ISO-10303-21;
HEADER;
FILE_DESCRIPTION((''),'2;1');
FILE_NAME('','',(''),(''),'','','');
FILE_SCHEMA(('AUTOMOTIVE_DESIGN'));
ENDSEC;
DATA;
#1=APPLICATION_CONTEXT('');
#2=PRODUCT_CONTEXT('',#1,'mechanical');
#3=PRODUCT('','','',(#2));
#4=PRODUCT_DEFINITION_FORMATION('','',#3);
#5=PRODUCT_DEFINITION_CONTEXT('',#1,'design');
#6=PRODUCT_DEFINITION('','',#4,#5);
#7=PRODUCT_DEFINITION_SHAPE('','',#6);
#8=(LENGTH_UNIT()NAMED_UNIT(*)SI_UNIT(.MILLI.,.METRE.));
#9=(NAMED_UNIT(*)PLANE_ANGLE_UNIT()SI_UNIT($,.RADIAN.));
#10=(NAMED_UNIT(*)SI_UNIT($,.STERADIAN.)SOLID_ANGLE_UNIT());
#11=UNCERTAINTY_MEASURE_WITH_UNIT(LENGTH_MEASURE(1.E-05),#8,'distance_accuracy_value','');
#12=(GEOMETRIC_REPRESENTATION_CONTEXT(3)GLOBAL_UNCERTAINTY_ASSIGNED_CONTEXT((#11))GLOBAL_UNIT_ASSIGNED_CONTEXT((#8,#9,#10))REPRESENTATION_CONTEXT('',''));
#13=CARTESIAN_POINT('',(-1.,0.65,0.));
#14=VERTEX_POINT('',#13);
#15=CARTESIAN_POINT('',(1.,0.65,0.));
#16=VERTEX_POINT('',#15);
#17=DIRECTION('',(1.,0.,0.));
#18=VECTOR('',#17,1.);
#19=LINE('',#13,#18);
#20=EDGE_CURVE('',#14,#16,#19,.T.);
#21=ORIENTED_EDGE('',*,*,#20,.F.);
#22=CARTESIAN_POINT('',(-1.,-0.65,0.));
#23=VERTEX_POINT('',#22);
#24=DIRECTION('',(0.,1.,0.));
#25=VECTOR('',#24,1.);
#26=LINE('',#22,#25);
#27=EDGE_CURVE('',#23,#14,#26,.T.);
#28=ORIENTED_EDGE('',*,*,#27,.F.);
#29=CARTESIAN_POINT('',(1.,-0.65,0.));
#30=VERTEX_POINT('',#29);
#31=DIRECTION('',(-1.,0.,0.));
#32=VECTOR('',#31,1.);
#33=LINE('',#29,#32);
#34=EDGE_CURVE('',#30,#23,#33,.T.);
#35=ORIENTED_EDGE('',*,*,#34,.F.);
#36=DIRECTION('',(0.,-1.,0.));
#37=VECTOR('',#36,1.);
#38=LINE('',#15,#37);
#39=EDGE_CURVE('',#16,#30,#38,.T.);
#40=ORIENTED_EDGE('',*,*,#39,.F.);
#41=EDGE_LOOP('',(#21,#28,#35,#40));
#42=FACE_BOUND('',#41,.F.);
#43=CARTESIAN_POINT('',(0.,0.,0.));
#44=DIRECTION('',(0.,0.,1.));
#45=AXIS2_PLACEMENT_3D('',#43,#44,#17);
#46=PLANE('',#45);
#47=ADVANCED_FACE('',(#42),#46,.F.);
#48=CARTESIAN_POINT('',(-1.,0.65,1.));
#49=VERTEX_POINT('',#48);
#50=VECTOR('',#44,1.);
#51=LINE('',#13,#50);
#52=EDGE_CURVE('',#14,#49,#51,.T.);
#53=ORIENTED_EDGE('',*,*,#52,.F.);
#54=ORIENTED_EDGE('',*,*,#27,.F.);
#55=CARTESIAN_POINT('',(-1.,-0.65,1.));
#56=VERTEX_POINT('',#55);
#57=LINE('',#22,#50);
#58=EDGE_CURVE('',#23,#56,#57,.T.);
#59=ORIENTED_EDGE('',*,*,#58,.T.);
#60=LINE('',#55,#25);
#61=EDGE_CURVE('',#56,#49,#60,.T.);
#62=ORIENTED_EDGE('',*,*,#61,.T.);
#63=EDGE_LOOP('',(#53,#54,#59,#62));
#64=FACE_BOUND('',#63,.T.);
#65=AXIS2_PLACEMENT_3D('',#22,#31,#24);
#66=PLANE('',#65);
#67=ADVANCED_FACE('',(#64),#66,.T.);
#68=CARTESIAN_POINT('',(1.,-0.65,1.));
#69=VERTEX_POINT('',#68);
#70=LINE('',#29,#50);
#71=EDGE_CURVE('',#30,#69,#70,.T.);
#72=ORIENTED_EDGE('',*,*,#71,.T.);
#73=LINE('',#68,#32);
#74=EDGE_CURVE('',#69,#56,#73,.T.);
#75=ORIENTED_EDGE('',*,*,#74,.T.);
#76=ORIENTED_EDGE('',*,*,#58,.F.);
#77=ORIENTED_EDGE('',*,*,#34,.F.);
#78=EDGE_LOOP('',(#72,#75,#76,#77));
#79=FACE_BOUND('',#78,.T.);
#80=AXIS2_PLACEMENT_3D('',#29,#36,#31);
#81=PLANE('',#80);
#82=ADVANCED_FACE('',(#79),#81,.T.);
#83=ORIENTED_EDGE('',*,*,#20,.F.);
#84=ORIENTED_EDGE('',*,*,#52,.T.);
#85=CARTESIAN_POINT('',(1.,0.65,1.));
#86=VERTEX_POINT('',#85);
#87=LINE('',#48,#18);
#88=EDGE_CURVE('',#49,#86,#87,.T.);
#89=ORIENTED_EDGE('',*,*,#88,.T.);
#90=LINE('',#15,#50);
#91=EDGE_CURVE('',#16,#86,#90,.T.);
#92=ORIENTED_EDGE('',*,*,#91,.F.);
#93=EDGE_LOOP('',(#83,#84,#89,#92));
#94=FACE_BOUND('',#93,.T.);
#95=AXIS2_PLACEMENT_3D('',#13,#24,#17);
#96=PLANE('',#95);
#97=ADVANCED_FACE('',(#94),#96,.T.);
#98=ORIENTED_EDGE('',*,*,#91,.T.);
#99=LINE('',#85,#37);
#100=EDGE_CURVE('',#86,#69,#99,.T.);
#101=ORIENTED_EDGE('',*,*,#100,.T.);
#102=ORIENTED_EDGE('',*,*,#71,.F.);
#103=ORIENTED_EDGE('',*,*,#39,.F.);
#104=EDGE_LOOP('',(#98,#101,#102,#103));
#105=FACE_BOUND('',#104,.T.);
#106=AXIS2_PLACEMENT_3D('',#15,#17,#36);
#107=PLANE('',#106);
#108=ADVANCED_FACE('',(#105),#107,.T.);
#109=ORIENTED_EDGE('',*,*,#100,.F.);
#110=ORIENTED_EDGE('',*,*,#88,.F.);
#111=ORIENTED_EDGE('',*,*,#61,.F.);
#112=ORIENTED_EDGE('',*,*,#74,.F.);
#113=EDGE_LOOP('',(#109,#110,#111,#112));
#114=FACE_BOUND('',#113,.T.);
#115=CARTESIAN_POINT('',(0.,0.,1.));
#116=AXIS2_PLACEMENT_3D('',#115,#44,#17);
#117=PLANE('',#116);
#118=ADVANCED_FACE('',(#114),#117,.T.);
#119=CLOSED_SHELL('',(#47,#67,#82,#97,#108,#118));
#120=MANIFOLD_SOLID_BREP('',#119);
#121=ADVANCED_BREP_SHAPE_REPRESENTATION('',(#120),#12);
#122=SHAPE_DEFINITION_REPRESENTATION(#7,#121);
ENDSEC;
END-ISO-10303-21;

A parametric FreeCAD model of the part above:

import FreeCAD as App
import Part
import Sketcher
from FreeCAD import Vector

doc = App.newDocument("Part")
body = doc.addObject("PartDesign::Body", "Body")

# Sketch on XY plane
sketch1 = body.newObject("Sketcher::SketchObject", "Sketch")
sketch1.AttachmentSupport = (doc.getObject("XY_Plane"), [""])
sketch1.MapMode = "FlatFace"
sketch1.addGeometry(Part.LineSegment(Vector(1, 0.7, 0), Vector(-1, 0.7, 0)), False)
sketch1.addGeometry(Part.LineSegment(Vector(-1, 0.7, 0), Vector(-1, -0.7, 0)), False)
sketch1.addGeometry(Part.LineSegment(Vector(-1, -0.7, 0), Vector(1, -0.7, 0)), False)
sketch1.addGeometry(Part.LineSegment(Vector(1, -0.7, 0), Vector(1, 0.7, 0)), False)
sketch1.addConstraint(Sketcher.Constraint("Coincident", 0, 2, 1, 1))
sketch1.addConstraint(Sketcher.Constraint("Coincident", 1, 2, 2, 1))
sketch1.addConstraint(Sketcher.Constraint("Coincident", 2, 2, 3, 1))
sketch1.addConstraint(Sketcher.Constraint("Coincident", 3, 2, 0, 1))
sketch1.addConstraint(Sketcher.Constraint("Horizontal", 0))
sketch1.addConstraint(Sketcher.Constraint("Vertical", 1))
sketch1.addConstraint(Sketcher.Constraint("Horizontal", 2))
sketch1.addConstraint(Sketcher.Constraint("Vertical", 3))
sketch1.addConstraint(Sketcher.Constraint("Symmetric", 0, 2, 2, 2, -1, 1))
sketch1.addConstraint(Sketcher.Constraint("DistanceX", 0, 2, 0, 1, 2.0))
sketch1.addConstraint(Sketcher.Constraint("DistanceY", 1, 2, 1, 1, 1.3))
pad1 = body.newObject("PartDesign::Pad", "Pad")
pad1.Profile = sketch1
pad1.Length = 1

doc.recompute()
